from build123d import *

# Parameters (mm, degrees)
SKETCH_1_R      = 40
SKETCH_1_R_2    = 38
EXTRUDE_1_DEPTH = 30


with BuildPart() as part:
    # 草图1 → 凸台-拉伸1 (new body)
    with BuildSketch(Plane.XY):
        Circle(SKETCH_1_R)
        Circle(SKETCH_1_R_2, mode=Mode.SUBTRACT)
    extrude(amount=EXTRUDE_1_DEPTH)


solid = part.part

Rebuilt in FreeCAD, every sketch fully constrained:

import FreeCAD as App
import Part
import Sketcher
from FreeCAD import Vector

doc = App.newDocument("Part")
body = doc.addObject("PartDesign::Body", "Body")

# Sketch on XY plane
sketch1 = body.newObject("Sketcher::SketchObject", "Sketch")
sketch1.AttachmentSupport = (doc.getObject("XY_Plane"), [""])
sketch1.MapMode = "FlatFace"
sketch1.addGeometry([
    Part.Circle(Vector(0, 0, 0), Vector(0, 0, 1), 40),
    Part.Circle(Vector(0, 0, 0), Vector(0, 0, 1), 38),
], False)
sketch1.addConstraint([
    Sketcher.Constraint("Coincident", 0, 3, -1, 1),
    Sketcher.Constraint("Coincident", 1, 3, -1, 1),
    Sketcher.Constraint("Diameter", 0, 80.0),
    Sketcher.Constraint("Diameter", 1, 76.0),
])
pad1 = body.newObject("PartDesign::Pad", "Pad")
pad1.Profile = sketch1
pad1.Length = 30

doc.recompute()
